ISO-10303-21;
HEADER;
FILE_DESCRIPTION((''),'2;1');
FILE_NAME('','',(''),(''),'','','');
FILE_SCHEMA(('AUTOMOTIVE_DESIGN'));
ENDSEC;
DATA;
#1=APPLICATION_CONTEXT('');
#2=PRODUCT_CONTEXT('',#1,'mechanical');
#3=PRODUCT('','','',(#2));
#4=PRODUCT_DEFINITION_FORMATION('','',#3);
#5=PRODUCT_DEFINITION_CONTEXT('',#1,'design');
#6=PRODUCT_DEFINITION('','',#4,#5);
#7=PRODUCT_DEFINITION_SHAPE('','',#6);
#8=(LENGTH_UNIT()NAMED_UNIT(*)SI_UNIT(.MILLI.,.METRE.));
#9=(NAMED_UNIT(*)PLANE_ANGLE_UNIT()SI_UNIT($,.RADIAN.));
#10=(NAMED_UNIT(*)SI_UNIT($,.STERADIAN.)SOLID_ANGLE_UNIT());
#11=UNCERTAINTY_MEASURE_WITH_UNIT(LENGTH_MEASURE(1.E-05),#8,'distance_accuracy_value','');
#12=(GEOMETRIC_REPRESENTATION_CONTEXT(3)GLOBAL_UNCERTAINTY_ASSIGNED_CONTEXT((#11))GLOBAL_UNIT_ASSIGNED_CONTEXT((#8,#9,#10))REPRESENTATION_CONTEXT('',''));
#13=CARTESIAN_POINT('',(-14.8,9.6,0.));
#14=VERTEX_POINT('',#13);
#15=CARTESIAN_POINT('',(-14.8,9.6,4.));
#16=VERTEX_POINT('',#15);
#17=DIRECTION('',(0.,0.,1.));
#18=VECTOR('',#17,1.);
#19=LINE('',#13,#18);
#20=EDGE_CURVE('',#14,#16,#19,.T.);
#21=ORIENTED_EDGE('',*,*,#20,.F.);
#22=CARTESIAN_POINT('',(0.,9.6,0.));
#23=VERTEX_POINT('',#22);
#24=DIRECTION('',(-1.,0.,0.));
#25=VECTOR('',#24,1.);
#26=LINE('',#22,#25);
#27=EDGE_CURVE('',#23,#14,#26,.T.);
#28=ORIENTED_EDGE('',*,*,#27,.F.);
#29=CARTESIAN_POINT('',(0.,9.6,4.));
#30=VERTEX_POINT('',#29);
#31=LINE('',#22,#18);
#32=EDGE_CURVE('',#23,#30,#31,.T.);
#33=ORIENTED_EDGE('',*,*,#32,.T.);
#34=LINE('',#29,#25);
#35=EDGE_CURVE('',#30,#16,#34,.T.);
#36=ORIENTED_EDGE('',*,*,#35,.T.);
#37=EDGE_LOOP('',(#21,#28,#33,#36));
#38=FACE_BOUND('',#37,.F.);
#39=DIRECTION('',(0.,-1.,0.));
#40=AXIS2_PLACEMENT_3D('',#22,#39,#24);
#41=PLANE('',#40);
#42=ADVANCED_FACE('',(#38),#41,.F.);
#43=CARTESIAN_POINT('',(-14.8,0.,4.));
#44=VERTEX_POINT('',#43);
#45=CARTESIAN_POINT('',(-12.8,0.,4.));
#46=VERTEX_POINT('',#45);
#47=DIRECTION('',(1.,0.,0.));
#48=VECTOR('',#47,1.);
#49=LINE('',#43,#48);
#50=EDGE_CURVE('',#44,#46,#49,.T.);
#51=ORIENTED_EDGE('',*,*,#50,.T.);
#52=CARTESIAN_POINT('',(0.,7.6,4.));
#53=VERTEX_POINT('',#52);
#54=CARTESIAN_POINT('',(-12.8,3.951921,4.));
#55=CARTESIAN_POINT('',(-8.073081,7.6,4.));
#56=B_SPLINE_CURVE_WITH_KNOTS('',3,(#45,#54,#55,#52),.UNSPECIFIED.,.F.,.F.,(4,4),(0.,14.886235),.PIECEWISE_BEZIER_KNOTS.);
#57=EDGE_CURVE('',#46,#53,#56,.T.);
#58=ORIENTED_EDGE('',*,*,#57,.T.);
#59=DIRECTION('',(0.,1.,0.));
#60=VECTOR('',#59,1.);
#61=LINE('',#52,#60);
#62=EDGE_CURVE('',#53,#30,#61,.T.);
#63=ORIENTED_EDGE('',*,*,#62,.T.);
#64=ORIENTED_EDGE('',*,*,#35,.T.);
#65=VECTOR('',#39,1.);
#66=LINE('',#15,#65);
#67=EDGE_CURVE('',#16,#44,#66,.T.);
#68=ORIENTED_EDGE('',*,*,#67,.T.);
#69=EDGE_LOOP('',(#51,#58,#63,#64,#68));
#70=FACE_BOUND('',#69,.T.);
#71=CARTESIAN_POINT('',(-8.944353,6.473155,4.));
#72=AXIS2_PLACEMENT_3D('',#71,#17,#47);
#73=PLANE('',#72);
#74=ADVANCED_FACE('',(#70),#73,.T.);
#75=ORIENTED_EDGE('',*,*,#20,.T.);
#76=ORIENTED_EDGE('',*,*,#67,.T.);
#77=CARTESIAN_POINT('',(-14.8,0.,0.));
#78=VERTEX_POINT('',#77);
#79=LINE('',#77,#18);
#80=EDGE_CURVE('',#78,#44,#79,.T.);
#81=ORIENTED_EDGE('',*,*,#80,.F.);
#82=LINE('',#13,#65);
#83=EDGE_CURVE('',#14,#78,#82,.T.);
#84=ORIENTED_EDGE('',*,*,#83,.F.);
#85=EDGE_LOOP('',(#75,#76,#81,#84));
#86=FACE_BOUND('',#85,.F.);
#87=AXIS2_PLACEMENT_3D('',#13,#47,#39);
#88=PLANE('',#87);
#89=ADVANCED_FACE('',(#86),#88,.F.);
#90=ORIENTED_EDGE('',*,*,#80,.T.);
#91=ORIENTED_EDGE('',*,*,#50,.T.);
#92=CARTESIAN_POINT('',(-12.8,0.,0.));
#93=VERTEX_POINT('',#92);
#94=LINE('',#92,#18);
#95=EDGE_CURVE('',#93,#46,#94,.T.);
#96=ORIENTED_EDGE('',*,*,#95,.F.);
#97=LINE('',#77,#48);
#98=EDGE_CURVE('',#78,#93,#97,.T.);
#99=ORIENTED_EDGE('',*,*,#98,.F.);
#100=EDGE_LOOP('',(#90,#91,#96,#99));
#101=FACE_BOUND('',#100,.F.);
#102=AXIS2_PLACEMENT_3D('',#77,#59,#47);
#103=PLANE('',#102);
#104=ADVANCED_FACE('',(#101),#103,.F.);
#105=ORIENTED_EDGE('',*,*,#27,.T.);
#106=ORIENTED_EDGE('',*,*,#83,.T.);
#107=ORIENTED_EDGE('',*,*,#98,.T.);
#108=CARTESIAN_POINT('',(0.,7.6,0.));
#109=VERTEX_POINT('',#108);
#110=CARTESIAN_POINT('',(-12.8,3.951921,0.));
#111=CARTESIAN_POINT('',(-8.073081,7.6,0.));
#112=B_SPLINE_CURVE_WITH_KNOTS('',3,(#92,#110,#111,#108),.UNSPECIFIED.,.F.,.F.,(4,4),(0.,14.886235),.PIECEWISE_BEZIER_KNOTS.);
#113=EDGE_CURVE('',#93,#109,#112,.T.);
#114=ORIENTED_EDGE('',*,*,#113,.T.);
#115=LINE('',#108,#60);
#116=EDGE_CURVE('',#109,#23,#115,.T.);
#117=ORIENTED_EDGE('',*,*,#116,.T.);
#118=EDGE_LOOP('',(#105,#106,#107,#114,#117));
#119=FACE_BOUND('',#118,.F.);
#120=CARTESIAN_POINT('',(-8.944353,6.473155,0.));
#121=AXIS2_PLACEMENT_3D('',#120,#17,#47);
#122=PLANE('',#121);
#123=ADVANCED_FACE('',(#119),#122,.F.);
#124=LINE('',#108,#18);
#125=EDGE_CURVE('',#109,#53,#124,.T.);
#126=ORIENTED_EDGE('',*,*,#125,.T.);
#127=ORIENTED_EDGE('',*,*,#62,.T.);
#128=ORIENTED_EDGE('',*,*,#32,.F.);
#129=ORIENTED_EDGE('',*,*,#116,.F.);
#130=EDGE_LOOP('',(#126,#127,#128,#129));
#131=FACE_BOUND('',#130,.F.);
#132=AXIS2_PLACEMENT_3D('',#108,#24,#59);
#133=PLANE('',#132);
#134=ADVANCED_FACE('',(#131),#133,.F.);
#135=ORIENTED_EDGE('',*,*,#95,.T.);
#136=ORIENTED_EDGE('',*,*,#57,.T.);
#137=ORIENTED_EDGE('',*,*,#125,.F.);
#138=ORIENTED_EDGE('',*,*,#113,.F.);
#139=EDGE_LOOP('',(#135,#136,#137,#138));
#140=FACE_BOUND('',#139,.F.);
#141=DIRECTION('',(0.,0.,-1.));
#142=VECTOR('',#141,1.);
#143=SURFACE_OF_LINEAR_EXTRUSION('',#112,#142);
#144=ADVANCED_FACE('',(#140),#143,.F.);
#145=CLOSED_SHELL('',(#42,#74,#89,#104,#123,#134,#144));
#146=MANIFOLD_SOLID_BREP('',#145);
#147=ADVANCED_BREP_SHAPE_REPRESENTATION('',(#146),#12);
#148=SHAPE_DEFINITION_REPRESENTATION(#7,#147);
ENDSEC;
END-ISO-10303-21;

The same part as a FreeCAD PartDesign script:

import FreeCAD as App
import Part
import Sketcher

V = App.Vector
Q = App.Units.Quantity

doc = App.newDocument("Part")
body = doc.addObject("PartDesign::Body", "Body")

# Sketch on XY plane
sketch1 = body.newObject("Sketcher::SketchObject", "Sketch")
sketch1.AttachmentSupport = (doc.getObject("XY_Plane"), [""])
sketch1.MapMode = "FlatFace"
sketch1.addGeometry(Part.LineSegment(V(-14.8, 0, 0), V(-12.8, 0, 0)), False)
sketch1.addGeometry(Part.BSplineCurve([V(-12.8, 0, 0), V(-12.8, 3.951921, 0), V(-8.073081, 7.6, 0), V(0, 7.6, 0)], [4, 4], [0, 14.886235], False, 3, [1, 1, 1, 1], False), False)
sketch1.addGeometry(Part.LineSegment(V(0, 7.6, 0), V(0, 9.6, 0)), False)
sketch1.addGeometry(Part.LineSegment(V(0, 9.6, 0), V(-14.8, 9.6, 0)), False)
sketch1.addGeometry(Part.LineSegment(V(-14.8, 9.6, 0), V(-14.8, 0, 0)), False)
sketch1.addConstraint(Sketcher.Constraint("Block", 1))
sketch1.addConstraint(Sketcher.Constraint("Coincident", 0, 2, 1, 1))
sketch1.addConstraint(Sketcher.Constraint("Coincident", 1, 2, 2, 1))
sketch1.addConstraint(Sketcher.Constraint("Coincident", 2, 2, 3, 1))
sketch1.addConstraint(Sketcher.Constraint("Coincident", 3, 2, 4, 1))
sketch1.addConstraint(Sketcher.Constraint("Coincident", 4, 2, 0, 1))
sketch1.addConstraint(Sketcher.Constraint("Horizontal", 0))
sketch1.addConstraint(Sketcher.Constraint("Vertical", 2))
sketch1.addConstraint(Sketcher.Constraint("Horizontal", 3))
sketch1.addConstraint(Sketcher.Constraint("Vertical", 4))
sketch1.addConstraint(Sketcher.Constraint("Equal", 0, 2))
sketch1.addConstraint(Sketcher.Constraint("DistanceX", 0, 1, 0, 2, Q("2 mm")))
pad1 = body.newObject("PartDesign::Pad", "Pad")
pad1.Profile = sketch1
pad1.Length = 4

doc.recompute()
